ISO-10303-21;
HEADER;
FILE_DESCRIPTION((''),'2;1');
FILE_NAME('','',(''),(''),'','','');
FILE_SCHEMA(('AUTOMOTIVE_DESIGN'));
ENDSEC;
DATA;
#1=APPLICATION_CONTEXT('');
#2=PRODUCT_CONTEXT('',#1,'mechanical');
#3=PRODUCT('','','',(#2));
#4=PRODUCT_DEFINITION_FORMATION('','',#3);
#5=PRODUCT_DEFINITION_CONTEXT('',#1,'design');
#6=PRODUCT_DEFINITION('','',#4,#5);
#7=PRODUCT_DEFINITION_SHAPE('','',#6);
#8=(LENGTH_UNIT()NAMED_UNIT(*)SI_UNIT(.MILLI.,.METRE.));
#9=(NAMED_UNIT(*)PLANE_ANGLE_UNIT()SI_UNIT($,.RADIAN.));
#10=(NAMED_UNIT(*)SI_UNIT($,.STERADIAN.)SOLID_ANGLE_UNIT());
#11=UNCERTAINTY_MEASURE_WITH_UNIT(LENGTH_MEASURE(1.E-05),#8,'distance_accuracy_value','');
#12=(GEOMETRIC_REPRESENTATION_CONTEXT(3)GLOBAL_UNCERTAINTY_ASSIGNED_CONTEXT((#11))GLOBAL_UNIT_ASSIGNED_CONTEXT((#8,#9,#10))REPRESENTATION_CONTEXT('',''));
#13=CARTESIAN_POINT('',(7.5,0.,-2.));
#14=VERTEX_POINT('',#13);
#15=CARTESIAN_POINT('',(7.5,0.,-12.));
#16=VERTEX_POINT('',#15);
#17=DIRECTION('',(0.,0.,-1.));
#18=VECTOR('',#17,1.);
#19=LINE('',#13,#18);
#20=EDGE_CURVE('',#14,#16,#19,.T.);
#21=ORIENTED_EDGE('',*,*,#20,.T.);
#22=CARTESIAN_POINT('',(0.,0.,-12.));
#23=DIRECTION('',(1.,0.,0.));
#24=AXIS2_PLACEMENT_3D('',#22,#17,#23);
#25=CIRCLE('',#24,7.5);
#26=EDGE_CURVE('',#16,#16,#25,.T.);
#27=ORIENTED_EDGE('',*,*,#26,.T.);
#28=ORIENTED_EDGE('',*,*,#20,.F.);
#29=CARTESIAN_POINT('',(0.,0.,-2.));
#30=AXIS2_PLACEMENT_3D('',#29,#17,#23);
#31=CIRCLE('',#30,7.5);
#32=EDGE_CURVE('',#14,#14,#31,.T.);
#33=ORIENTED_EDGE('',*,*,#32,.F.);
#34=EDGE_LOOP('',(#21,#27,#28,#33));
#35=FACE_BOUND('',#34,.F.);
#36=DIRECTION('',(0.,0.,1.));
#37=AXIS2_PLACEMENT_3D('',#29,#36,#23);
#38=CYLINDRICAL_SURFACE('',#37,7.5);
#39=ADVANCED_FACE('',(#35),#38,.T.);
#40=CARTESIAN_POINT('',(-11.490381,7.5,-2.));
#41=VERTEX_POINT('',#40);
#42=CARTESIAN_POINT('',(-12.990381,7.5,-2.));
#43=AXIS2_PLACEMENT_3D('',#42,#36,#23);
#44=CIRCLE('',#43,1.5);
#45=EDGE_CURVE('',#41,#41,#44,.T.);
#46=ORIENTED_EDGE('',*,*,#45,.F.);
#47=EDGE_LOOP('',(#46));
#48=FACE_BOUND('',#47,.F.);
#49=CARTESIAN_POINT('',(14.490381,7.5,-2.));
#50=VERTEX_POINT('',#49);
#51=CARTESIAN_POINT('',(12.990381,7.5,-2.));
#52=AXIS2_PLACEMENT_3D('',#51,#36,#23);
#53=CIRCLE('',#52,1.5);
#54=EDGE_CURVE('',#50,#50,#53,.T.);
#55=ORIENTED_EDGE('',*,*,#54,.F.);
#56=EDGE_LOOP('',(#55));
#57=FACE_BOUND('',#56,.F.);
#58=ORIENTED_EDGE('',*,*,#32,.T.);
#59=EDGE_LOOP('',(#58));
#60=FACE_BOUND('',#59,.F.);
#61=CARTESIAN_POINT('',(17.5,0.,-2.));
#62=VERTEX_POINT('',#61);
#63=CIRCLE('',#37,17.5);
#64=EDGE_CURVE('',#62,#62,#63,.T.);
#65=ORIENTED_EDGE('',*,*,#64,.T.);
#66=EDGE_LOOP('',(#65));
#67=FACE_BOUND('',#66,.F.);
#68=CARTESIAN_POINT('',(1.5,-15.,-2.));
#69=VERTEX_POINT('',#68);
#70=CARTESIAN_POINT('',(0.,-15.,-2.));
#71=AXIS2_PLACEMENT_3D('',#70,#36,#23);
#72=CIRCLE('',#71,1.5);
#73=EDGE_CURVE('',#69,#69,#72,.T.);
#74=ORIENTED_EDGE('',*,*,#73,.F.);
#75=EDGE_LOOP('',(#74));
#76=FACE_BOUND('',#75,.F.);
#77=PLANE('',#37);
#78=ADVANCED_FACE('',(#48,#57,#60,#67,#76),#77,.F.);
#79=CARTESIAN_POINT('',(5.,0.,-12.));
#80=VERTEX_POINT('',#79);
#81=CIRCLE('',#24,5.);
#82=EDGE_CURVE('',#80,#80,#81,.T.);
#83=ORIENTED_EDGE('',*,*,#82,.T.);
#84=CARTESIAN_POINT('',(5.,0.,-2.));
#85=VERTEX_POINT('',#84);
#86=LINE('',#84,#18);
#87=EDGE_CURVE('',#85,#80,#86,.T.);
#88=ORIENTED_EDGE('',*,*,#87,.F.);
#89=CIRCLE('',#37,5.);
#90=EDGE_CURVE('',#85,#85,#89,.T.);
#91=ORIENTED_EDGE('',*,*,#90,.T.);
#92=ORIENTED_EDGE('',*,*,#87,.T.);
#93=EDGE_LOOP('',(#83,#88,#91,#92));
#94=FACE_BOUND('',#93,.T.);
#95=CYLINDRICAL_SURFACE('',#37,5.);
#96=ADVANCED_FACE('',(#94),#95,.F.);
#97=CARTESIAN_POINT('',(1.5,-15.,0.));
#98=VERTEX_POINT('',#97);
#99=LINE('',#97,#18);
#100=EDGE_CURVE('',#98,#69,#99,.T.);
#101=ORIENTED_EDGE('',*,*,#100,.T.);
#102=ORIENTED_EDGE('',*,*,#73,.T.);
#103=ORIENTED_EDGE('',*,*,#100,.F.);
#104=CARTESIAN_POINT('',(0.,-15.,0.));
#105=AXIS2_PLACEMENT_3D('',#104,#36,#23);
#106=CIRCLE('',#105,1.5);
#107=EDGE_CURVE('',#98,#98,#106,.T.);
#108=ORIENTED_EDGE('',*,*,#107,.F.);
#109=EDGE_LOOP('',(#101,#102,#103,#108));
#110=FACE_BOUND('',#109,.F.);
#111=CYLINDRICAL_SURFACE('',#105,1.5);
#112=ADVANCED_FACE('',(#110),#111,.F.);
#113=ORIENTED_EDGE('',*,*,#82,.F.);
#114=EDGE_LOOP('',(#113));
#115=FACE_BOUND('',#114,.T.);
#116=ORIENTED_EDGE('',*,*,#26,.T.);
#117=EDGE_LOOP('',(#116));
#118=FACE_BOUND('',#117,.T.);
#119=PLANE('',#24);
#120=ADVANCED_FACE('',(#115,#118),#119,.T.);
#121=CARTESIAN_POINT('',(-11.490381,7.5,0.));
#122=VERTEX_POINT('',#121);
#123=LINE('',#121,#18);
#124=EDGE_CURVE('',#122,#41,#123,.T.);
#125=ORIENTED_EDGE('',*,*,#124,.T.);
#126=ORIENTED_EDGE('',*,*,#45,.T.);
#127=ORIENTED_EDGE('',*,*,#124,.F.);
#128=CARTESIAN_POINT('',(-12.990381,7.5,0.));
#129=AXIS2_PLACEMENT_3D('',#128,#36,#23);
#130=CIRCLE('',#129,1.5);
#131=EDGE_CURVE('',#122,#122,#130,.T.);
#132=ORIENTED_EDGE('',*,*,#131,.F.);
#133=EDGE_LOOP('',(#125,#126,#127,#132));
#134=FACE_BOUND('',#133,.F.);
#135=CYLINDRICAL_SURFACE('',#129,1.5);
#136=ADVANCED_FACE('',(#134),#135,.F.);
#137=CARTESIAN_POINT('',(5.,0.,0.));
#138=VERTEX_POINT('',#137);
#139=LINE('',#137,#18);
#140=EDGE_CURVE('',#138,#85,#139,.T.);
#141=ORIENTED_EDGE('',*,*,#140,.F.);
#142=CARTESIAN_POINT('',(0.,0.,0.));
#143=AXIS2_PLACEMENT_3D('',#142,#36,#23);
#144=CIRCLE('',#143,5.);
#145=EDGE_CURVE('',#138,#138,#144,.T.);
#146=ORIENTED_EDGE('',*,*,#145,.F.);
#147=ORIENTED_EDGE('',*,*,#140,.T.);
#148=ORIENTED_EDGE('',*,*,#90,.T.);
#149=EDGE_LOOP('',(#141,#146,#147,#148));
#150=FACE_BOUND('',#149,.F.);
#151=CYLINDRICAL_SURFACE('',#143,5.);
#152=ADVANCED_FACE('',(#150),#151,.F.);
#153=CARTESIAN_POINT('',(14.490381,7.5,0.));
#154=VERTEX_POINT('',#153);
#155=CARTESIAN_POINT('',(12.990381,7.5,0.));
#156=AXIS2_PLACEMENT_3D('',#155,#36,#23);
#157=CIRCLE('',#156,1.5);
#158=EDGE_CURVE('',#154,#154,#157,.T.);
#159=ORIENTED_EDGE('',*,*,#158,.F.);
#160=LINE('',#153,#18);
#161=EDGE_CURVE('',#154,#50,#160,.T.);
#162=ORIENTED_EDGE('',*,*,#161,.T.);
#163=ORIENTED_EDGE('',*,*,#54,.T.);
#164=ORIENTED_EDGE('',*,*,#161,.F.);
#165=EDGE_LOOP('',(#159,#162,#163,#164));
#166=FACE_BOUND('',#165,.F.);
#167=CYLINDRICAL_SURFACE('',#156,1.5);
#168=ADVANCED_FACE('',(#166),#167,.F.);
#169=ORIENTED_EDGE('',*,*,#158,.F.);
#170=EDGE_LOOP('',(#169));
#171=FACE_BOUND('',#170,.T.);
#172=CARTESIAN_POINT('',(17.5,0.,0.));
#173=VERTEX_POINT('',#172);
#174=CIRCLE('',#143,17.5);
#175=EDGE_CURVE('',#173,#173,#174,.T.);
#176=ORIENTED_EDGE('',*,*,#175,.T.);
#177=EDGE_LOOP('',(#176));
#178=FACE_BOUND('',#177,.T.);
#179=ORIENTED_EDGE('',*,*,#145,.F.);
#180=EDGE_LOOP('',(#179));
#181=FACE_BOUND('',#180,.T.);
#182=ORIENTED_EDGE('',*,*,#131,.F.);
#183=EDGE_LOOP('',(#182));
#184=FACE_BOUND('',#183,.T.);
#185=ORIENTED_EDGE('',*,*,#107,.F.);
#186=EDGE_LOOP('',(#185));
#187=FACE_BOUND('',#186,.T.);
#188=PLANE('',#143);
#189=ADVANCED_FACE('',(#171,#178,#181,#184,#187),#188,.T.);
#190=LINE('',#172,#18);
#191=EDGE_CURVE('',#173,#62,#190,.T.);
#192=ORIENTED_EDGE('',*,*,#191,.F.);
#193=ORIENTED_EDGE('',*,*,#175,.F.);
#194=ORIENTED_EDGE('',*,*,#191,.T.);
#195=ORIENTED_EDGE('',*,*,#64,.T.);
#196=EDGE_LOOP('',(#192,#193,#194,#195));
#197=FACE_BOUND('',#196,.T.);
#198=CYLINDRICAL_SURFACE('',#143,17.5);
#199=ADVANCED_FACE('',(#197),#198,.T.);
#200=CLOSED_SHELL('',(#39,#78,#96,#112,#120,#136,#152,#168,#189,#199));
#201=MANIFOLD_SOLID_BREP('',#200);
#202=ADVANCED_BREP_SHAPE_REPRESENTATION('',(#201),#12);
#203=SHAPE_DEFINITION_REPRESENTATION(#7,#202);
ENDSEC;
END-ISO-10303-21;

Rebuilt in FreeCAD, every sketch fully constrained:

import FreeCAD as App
import Part
import Sketcher
from FreeCAD import Vector
Q = App.Units.Quantity

doc = App.newDocument("Part")
body = doc.addObject("PartDesign::Body", "Body")

sketch1 = doc.addObject("Sketcher::SketchObject", "Sketch")
body.addObject(sketch1)
sketch1.AttachmentSupport = (doc.XY_Plane, [""])
sketch1.MapMode = "FlatFace"
sketch1.addGeometry(Part.Circle(Vector(0, 0, 0), Vector(0, 0, 1), 17.5), False)
sketch1.addGeometry(Part.Circle(Vector(0, 0, 0), Vector(0, 0, 1), 5), False)
sketch1.addConstraint(Sketcher.Constraint("Coincident", 0, 3, -1, 1))
sketch1.addConstraint(Sketcher.Constraint("Coincident", 1, 3, -1, 1))
sketch1.addConstraint(Sketcher.Constraint("Diameter", 0, Q("35 mm")))
sketch1.addConstraint(Sketcher.Constraint("Diameter", 1, Q("10 mm")))
pad1 = doc.addObject("PartDesign::Pad", "Pad")
body.addObject(pad1)
pad1.Profile = sketch1
pad1.Length = 2
pad1.Reversed = True

sketch2 = doc.addObject("Sketcher::SketchObject", "Sketch001")
body.addObject(sketch2)
sketch2.AttachmentSupport = (doc.XY_Plane, [""])
sketch2.MapMode = "FlatFace"
sketch2.AttachmentOffset = App.Placement(Vector(0, 0, -2), App.Rotation())
sketch2.addGeometry(Part.Circle(Vector(0, 0, 0), Vector(0, 0, 1), 7.5), False)
sketch2.addGeometry(Part.Circle(Vector(0, 0, 0), Vector(0, 0, 1), 5), False)
sketch2.addConstraint(Sketcher.Constraint("Coincident", 0, 3, -1, 1))
sketch2.addConstraint(Sketcher.Constraint("Coincident", 1, 3, -1, 1))
sketch2.addConstraint(Sketcher.Constraint("Diameter", 0, Q("15 mm")))
sketch2.addConstraint(Sketcher.Constraint("Diameter", 1, Q("10 mm")))
pad2 = doc.addObject("PartDesign::Pad", "Pad001")
body.addObject(pad2)
pad2.Profile = sketch2
pad2.Length = 10
pad2.Reversed = True

sketch3 = doc.addObject("Sketcher::SketchObject", "Sketch002")
body.addObject(sketch3)
sketch3.AttachmentSupport = (doc.XY_Plane, [""])
sketch3.MapMode = "FlatFace"
sketch3.addGeometry(Part.Circle(Vector(-12.990381, 7.5, 0), Vector(0, 0, 1), 1.5), False)
sketch3.addGeometry(Part.Circle(Vector(12.990381, 7.5, 0), Vector(0, 0, 1), 1.5), False)
sketch3.addGeometry(Part.Circle(Vector(0, -15, 0), Vector(0, 0, 1), 1.5), False)
sketch3.addConstraint(Sketcher.Constraint("Equal", 0, 1))
sketch3.addConstraint(Sketcher.Constraint("Equal", 1, 2))
sketch3.addConstraint(Sketcher.Constraint("Symmetric", 0, 3, 1, 3, -2))
sketch3.addConstraint(Sketcher.Constraint("PointOnObject", 2, 3, -2))
sketch3.addConstraint(Sketcher.Constraint("Diameter", 0, Q("3 mm")))
sketch3.addConstraint(Sketcher.Constraint("DistanceY", 2, 3, -1, 1, Q("15 mm")))
sketch3.addConstraint(Sketcher.Constraint("DistanceY", -1, 1, 0, 3, Q("7.5 mm")))
sketch3.addConstraint(Sketcher.Constraint("DistanceX", 0, 3, -1, 1, Q("12.990381 mm")))
pocket1 = doc.addObject("PartDesign::Pocket", "Pocket")
body.addObject(pocket1)
pocket1.Profile = sketch3
pocket1.Type = "ThroughAll"

doc.recompute()
